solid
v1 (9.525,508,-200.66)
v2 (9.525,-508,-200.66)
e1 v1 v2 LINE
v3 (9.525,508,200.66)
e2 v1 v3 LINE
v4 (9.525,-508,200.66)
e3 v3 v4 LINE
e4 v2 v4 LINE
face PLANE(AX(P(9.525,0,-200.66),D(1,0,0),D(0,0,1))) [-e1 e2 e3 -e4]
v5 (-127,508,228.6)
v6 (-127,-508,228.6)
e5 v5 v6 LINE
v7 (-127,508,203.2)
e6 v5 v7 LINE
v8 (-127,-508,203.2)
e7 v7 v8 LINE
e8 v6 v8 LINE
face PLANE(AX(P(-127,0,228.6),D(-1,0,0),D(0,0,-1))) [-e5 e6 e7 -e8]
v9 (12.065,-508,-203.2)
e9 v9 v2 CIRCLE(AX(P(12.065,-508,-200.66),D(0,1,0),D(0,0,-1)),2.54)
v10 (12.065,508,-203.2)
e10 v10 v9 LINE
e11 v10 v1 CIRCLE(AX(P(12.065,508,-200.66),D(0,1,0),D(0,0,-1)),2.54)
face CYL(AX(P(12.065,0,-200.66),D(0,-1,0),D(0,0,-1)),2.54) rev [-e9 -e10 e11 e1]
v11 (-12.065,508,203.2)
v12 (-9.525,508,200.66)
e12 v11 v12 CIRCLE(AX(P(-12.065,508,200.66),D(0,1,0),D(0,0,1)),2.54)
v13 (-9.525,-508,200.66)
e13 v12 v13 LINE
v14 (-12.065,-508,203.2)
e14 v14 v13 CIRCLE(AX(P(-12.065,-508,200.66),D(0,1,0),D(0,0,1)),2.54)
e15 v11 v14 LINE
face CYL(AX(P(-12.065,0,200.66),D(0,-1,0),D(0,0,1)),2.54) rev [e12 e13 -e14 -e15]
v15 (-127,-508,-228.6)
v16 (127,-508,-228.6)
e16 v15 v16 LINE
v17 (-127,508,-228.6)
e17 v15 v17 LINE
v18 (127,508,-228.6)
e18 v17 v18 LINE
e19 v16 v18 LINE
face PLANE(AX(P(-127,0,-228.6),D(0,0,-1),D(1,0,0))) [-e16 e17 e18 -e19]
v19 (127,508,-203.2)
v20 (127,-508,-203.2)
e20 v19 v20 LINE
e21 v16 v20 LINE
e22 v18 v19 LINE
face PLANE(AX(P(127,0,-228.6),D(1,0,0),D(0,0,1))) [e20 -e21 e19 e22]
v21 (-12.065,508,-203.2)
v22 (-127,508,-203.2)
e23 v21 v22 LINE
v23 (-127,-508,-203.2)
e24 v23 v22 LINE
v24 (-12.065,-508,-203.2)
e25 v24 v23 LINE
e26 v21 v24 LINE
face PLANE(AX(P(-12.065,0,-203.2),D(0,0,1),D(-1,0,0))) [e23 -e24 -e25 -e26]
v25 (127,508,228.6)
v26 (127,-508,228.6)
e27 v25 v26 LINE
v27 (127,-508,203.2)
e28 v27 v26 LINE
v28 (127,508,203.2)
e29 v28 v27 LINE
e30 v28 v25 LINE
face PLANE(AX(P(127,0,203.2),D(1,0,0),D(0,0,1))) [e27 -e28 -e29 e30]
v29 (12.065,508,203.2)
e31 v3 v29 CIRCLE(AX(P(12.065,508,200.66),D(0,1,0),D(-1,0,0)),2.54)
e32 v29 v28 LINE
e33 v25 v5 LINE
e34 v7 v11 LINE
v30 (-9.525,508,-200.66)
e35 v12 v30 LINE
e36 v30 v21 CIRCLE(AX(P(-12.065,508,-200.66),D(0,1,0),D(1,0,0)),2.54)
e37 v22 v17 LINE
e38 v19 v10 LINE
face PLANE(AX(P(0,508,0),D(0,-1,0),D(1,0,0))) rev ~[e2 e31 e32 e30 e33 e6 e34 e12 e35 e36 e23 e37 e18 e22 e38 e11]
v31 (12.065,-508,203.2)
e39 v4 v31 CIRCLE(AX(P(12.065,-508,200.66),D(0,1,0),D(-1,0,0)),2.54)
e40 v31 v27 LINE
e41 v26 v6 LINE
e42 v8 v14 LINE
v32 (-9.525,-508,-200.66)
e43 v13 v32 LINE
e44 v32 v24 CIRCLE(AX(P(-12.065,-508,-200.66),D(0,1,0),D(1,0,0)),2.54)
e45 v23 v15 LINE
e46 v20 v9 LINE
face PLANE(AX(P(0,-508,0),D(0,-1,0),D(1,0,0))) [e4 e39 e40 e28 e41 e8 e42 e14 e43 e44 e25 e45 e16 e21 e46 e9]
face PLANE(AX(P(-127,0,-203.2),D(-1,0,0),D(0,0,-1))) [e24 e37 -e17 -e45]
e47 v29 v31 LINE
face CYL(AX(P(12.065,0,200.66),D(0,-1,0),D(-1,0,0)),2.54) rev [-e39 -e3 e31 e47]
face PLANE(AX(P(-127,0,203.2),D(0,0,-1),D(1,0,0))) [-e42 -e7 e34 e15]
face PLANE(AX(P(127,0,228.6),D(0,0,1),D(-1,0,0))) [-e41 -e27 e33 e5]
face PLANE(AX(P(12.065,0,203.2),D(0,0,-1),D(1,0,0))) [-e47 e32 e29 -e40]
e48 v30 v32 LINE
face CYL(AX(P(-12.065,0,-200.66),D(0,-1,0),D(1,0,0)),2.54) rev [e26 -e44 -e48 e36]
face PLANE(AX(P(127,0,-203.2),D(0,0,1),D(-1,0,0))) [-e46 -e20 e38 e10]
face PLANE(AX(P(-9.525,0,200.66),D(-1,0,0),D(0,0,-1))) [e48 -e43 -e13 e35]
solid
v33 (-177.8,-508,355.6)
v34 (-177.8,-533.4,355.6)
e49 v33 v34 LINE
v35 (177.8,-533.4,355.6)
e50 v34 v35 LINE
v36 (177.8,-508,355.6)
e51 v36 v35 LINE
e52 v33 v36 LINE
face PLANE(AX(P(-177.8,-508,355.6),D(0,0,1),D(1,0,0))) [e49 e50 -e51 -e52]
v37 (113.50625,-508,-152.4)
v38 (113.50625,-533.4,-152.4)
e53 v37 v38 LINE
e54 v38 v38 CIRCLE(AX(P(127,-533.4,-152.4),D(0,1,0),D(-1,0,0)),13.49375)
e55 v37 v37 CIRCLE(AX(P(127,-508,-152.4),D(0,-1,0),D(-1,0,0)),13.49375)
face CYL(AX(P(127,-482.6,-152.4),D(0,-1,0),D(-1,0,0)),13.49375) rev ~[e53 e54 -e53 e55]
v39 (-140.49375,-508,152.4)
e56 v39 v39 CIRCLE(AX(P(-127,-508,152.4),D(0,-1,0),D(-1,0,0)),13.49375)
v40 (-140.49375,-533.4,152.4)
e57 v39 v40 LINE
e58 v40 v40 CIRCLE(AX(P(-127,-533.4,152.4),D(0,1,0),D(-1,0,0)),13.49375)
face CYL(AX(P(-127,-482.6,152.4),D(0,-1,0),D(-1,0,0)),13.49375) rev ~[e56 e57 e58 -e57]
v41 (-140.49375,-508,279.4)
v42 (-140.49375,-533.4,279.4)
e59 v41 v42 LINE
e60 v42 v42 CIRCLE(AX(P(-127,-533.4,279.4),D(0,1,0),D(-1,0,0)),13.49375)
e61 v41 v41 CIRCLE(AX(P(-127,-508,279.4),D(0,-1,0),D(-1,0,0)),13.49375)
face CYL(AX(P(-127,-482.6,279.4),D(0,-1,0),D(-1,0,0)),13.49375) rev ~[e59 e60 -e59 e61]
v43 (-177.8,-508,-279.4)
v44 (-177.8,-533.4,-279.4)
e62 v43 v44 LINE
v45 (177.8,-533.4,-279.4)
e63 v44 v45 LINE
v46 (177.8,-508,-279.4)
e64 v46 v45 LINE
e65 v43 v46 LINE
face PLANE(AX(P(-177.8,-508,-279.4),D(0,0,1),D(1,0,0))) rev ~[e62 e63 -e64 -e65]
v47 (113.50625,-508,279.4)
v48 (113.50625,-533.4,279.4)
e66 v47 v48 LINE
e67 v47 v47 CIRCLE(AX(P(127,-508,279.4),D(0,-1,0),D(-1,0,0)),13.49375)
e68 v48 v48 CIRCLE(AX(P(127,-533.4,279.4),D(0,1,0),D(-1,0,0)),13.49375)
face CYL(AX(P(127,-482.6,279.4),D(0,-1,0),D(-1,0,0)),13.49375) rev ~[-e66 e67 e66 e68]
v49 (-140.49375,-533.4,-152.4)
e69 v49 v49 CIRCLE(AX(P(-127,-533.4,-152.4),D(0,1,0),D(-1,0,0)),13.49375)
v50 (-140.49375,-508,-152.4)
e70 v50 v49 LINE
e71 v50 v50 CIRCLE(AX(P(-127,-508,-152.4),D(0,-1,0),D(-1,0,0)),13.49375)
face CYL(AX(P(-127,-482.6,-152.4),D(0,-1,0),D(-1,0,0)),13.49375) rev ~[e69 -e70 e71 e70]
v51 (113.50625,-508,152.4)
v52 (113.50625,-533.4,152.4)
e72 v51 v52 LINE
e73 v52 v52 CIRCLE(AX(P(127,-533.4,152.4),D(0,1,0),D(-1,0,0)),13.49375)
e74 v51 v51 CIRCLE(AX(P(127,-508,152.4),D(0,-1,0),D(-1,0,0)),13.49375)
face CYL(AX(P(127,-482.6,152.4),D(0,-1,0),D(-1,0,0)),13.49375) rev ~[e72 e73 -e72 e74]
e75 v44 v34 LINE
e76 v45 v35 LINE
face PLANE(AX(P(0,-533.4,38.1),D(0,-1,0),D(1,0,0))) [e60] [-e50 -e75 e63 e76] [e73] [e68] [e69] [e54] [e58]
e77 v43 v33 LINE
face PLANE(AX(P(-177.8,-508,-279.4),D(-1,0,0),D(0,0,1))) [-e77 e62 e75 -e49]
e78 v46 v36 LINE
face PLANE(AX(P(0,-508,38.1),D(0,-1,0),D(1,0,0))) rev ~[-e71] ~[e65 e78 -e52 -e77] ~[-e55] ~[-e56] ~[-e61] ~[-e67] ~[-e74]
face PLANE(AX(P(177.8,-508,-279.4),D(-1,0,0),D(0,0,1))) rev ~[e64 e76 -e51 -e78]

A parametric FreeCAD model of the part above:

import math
import FreeCAD as App
import Part
import Sketcher

V = App.Vector
Q = App.Units.Quantity


def add_polygon(sketch, points):
    """Adds a closed chain of lines whose ends are joined by coincident constraints."""
    first, n = sketch.GeometryCount, len(points)
    for a, b in zip(points, points[1:] + points[:1]):
        sketch.addGeometry(Part.LineSegment(App.Vector(*a, 0), App.Vector(*b, 0)), False)
    for i in range(n):
        sketch.addConstraint(Sketcher.Constraint("Coincident", first + i, 2, first + (i + 1) % n, 1))

doc = App.newDocument("Part")
body = doc.addObject("PartDesign::Body", "Body")

sketch1 = body.newObject("Sketcher::SketchObject", "Sketch")
sketch1.AttachmentSupport = (doc.getObject("XZ_Plane"), [""])
sketch1.MapMode = "FlatFace"
sketch1.addGeometry(Part.LineSegment(V(127, -228.6, 0), V(127, -203.2, 0)), False)
sketch1.addGeometry(Part.LineSegment(V(127, -203.2, 0), V(12.065, -203.2, 0)), False)
sketch1.addGeometry(Part.ArcOfCircle(Part.Circle(V(12.065, -200.66, 0), V(0, 0, 1), 2.54), math.radians(180), math.radians(270)), False)
sketch1.addGeometry(Part.LineSegment(V(9.525, -200.66, 0), V(9.525, 200.66, 0)), False)
sketch1.addGeometry(Part.ArcOfCircle(Part.Circle(V(12.065, 200.66, 0), V(0, 0, 1), 2.54), math.radians(90), math.radians(180)), False)
sketch1.addGeometry(Part.LineSegment(V(12.065, 203.2, 0), V(127, 203.2, 0)), False)
sketch1.addGeometry(Part.LineSegment(V(127, 203.2, 0), V(127, 228.6, 0)), False)
sketch1.addGeometry(Part.LineSegment(V(127, 228.6, 0), V(-127, 228.6, 0)), False)
sketch1.addGeometry(Part.LineSegment(V(-127, 228.6, 0), V(-127, 203.2, 0)), False)
sketch1.addGeometry(Part.LineSegment(V(-127, 203.2, 0), V(-12.065, 203.2, 0)), False)
sketch1.addGeometry(Part.ArcOfCircle(Part.Circle(V(-12.065, 200.66, 0), V(0, 0, 1), 2.54), math.radians(0), math.radians(90)), False)
sketch1.addGeometry(Part.LineSegment(V(-9.525, 200.66, 0), V(-9.525, -200.66, 0)), False)
sketch1.addGeometry(Part.ArcOfCircle(Part.Circle(V(-12.065, -200.66, 0), V(0, 0, 1), 2.54), math.radians(-90), math.radians(0)), False)
sketch1.addGeometry(Part.LineSegment(V(-12.065, -203.2, 0), V(-127, -203.2, 0)), False)
sketch1.addGeometry(Part.LineSegment(V(-127, -203.2, 0), V(-127, -228.6, 0)), False)
sketch1.addGeometry(Part.LineSegment(V(-127, -228.6, 0), V(127, -228.6, 0)), False)
sketch1.addConstraint(Sketcher.Constraint("Coincident", 0, 2, 1, 1))
sketch1.addConstraint(Sketcher.Constraint("Tangent", 1, 2, 2, 2))
sketch1.addConstraint(Sketcher.Constraint("Tangent", 2, 1, 3, 1))
sketch1.addConstraint(Sketcher.Constraint("Tangent", 3, 2, 4, 2))
sketch1.addConstraint(Sketcher.Constraint("Tangent", 4, 1, 5, 1))
sketch1.addConstraint(Sketcher.Constraint("Coincident", 5, 2, 6, 1))
sketch1.addConstraint(Sketcher.Constraint("Coincident", 6, 2, 7, 1))
sketch1.addConstraint(Sketcher.Constraint("Coincident", 7, 2, 8, 1))
sketch1.addConstraint(Sketcher.Constraint("Coincident", 8, 2, 9, 1))
sketch1.addConstraint(Sketcher.Constraint("Tangent", 9, 2, 10, 2))
sketch1.addConstraint(Sketcher.Constraint("Tangent", 10, 1, 11, 1))
sketch1.addConstraint(Sketcher.Constraint("Tangent", 11, 2, 12, 2))
sketch1.addConstraint(Sketcher.Constraint("Tangent", 12, 1, 13, 1))
sketch1.addConstraint(Sketcher.Constraint("Coincident", 13, 2, 14, 1))
sketch1.addConstraint(Sketcher.Constraint("Coincident", 14, 2, 15, 1))
sketch1.addConstraint(Sketcher.Constraint("Coincident", 15, 2, 0, 1))
sketch1.addConstraint(Sketcher.Constraint("Vertical", 0))
sketch1.addConstraint(Sketcher.Constraint("Horizontal", 1))
sketch1.addConstraint(Sketcher.Constraint("Vertical", 3))
sketch1.addConstraint(Sketcher.Constraint("Horizontal", 5))
sketch1.addConstraint(Sketcher.Constraint("Vertical", 6))
sketch1.addConstraint(Sketcher.Constraint("Horizontal", 7))
sketch1.addConstraint(Sketcher.Constraint("Vertical", 8))
sketch1.addConstraint(Sketcher.Constraint("Horizontal", 9))
sketch1.addConstraint(Sketcher.Constraint("Vertical", 11))
sketch1.addConstraint(Sketcher.Constraint("Horizontal", 13))
sketch1.addConstraint(Sketcher.Constraint("Vertical", 14))
sketch1.addConstraint(Sketcher.Constraint("Horizontal", 15))
sketch1.addConstraint(Sketcher.Constraint("Equal", 2, 4))
sketch1.addConstraint(Sketcher.Constraint("Equal", 4, 10))
sketch1.addConstraint(Sketcher.Constraint("Equal", 10, 12))
sketch1.addConstraint(Sketcher.Constraint("Symmetric", 2, 3, 10, 3, -1, 1))
sketch1.addConstraint(Sketcher.Constraint("Symmetric", 5, 2, 13, 2, -1, 1))
sketch1.addConstraint(Sketcher.Constraint("Symmetric", 7, 2, 15, 2, -1, 1))
sketch1.addConstraint(Sketcher.Constraint("Symmetric", 5, 2, 8, 2, -2))
sketch1.addConstraint(Sketcher.Constraint("Radius", 2, Q("0.1 in")))
sketch1.addConstraint(Sketcher.Constraint("DistanceX", 7, 2, 7, 1, Q("10 in")))
sketch1.addConstraint(Sketcher.Constraint("DistanceY", 0, 1, 0, 2, Q("1 in")))
sketch1.addConstraint(Sketcher.Constraint("DistanceY", 3, 1, 3, 2, Q("15.8 in")))
sketch1.addConstraint(Sketcher.Constraint("DistanceX", 1, 2, 1, 1, Q("4.525 in")))
pad1 = body.newObject("PartDesign::Pad", "Pad")
pad1.Profile = sketch1
pad1.Length = Q("40 in")
pad1.Midplane = True
body2 = doc.addObject("PartDesign::Body", "Body001")

sketch2 = body2.newObject("Sketcher::SketchObject", "Sketch001")
sketch2.AttachmentSupport = (doc.getObject("XZ_Plane001"), [""])
sketch2.MapMode = "FlatFace"
sketch2.AttachmentOffset = App.Placement(V(0, 0, 20 * 25.4), App.Rotation())
add_polygon(sketch2, [(-177.8, 355.6), (-177.8, -279.4), (177.8, -279.4), (177.8, 355.6)])
sketch2.addConstraint(Sketcher.Constraint("Vertical", 0))
sketch2.addConstraint(Sketcher.Constraint("Horizontal", 1))
sketch2.addConstraint(Sketcher.Constraint("Vertical", 2))
sketch2.addConstraint(Sketcher.Constraint("Horizontal", 3))
sketch2.addConstraint(Sketcher.Constraint("DistanceX", 1, 1, 1, 2, Q("14 in")))
sketch2.addConstraint(Sketcher.Constraint("DistanceY", 0, 2, 0, 1, Q("25 in")))
sketch2.addConstraint(Sketcher.Constraint("DistanceX", 0, 2, -1, 1, Q("7 in")))
sketch2.addConstraint(Sketcher.Constraint("DistanceY", 0, 2, -1, 1, Q("11 in")))
pad2 = body2.newObject("PartDesign::Pad", "Pad001")
pad2.Profile = sketch2
pad2.Length = Q("1 in")

sketch3 = body2.newObject("Sketcher::SketchObject", "Sketch002")
sketch3.AttachmentSupport = (doc.getObject("XZ_Plane001"), [""])
sketch3.MapMode = "FlatFace"
sketch3.AttachmentOffset = App.Placement(V(0, 0, 20 * 25.4), App.Rotation())
sketch3.addGeometry(Part.Circle(V(127, 279.4, 0), V(0, 0, 1), 13.49375), False)
sketch3.addGeometry(Part.Circle(V(127, 152.4, 0), V(0, 0, 1), 13.49375), False)
sketch3.addGeometry(Part.Circle(V(127, -152.4, 0), V(0, 0, 1), 13.49375), False)
sketch3.addGeometry(Part.Circle(V(-127, -152.4, 0), V(0, 0, 1), 13.49375), False)
sketch3.addGeometry(Part.Circle(V(-127, 152.4, 0), V(0, 0, 1), 13.49375), False)
sketch3.addGeometry(Part.Circle(V(-127, 279.4, 0), V(0, 0, 1), 13.49375), False)
sketch3.addConstraint(Sketcher.Constraint("Equal", 0, 1))
sketch3.addConstraint(Sketcher.Constraint("Equal", 1, 2))
sketch3.addConstraint(Sketcher.Constraint("Equal", 2, 3))
sketch3.addConstraint(Sketcher.Constraint("Equal", 3, 4))
sketch3.addConstraint(Sketcher.Constraint("Equal", 4, 5))
sketch3.addConstraint(Sketcher.Constraint("Symmetric", 1, 3, 3, 3, -1, 1))
sketch3.addConstraint(Sketcher.Constraint("Symmetric", 2, 3, 4, 3, -1, 1))
sketch3.addConstraint(Sketcher.Constraint("Symmetric", 2, 3, 3, 3, -2))
sketch3.addConstraint(Sketcher.Constraint("Symmetric", 0, 3, 5, 3, -2))
sketch3.addConstraint(Sketcher.Constraint("Vertical", 0, 3, 1, 3))
sketch3.addConstraint(Sketcher.Constraint("Diameter", 0, Q("1.0625 in")))
sketch3.addConstraint(Sketcher.Constraint("DistanceX", -1, 1, 0, 3, Q("5 in")))
sketch3.addConstraint(Sketcher.Constraint("DistanceY", -1, 1, 0, 3, Q("11 in")))
sketch3.addConstraint(Sketcher.Constraint("DistanceY", -1, 1, 1, 3, Q("6 in")))
doc.recompute()
hole = body2.newObject("PartDesign::Hole", "Hole")
hole.Profile = sketch3
hole.ThreadType = "None"
hole.Diameter = Q("1.0625 in")
hole.DepthType = "Dimension"
hole.Depth = Q("1 in")
hole.DrillPoint = "Angled"
hole.DrillPointAngle = 118
hole.Reversed = True

doc.recompute()
